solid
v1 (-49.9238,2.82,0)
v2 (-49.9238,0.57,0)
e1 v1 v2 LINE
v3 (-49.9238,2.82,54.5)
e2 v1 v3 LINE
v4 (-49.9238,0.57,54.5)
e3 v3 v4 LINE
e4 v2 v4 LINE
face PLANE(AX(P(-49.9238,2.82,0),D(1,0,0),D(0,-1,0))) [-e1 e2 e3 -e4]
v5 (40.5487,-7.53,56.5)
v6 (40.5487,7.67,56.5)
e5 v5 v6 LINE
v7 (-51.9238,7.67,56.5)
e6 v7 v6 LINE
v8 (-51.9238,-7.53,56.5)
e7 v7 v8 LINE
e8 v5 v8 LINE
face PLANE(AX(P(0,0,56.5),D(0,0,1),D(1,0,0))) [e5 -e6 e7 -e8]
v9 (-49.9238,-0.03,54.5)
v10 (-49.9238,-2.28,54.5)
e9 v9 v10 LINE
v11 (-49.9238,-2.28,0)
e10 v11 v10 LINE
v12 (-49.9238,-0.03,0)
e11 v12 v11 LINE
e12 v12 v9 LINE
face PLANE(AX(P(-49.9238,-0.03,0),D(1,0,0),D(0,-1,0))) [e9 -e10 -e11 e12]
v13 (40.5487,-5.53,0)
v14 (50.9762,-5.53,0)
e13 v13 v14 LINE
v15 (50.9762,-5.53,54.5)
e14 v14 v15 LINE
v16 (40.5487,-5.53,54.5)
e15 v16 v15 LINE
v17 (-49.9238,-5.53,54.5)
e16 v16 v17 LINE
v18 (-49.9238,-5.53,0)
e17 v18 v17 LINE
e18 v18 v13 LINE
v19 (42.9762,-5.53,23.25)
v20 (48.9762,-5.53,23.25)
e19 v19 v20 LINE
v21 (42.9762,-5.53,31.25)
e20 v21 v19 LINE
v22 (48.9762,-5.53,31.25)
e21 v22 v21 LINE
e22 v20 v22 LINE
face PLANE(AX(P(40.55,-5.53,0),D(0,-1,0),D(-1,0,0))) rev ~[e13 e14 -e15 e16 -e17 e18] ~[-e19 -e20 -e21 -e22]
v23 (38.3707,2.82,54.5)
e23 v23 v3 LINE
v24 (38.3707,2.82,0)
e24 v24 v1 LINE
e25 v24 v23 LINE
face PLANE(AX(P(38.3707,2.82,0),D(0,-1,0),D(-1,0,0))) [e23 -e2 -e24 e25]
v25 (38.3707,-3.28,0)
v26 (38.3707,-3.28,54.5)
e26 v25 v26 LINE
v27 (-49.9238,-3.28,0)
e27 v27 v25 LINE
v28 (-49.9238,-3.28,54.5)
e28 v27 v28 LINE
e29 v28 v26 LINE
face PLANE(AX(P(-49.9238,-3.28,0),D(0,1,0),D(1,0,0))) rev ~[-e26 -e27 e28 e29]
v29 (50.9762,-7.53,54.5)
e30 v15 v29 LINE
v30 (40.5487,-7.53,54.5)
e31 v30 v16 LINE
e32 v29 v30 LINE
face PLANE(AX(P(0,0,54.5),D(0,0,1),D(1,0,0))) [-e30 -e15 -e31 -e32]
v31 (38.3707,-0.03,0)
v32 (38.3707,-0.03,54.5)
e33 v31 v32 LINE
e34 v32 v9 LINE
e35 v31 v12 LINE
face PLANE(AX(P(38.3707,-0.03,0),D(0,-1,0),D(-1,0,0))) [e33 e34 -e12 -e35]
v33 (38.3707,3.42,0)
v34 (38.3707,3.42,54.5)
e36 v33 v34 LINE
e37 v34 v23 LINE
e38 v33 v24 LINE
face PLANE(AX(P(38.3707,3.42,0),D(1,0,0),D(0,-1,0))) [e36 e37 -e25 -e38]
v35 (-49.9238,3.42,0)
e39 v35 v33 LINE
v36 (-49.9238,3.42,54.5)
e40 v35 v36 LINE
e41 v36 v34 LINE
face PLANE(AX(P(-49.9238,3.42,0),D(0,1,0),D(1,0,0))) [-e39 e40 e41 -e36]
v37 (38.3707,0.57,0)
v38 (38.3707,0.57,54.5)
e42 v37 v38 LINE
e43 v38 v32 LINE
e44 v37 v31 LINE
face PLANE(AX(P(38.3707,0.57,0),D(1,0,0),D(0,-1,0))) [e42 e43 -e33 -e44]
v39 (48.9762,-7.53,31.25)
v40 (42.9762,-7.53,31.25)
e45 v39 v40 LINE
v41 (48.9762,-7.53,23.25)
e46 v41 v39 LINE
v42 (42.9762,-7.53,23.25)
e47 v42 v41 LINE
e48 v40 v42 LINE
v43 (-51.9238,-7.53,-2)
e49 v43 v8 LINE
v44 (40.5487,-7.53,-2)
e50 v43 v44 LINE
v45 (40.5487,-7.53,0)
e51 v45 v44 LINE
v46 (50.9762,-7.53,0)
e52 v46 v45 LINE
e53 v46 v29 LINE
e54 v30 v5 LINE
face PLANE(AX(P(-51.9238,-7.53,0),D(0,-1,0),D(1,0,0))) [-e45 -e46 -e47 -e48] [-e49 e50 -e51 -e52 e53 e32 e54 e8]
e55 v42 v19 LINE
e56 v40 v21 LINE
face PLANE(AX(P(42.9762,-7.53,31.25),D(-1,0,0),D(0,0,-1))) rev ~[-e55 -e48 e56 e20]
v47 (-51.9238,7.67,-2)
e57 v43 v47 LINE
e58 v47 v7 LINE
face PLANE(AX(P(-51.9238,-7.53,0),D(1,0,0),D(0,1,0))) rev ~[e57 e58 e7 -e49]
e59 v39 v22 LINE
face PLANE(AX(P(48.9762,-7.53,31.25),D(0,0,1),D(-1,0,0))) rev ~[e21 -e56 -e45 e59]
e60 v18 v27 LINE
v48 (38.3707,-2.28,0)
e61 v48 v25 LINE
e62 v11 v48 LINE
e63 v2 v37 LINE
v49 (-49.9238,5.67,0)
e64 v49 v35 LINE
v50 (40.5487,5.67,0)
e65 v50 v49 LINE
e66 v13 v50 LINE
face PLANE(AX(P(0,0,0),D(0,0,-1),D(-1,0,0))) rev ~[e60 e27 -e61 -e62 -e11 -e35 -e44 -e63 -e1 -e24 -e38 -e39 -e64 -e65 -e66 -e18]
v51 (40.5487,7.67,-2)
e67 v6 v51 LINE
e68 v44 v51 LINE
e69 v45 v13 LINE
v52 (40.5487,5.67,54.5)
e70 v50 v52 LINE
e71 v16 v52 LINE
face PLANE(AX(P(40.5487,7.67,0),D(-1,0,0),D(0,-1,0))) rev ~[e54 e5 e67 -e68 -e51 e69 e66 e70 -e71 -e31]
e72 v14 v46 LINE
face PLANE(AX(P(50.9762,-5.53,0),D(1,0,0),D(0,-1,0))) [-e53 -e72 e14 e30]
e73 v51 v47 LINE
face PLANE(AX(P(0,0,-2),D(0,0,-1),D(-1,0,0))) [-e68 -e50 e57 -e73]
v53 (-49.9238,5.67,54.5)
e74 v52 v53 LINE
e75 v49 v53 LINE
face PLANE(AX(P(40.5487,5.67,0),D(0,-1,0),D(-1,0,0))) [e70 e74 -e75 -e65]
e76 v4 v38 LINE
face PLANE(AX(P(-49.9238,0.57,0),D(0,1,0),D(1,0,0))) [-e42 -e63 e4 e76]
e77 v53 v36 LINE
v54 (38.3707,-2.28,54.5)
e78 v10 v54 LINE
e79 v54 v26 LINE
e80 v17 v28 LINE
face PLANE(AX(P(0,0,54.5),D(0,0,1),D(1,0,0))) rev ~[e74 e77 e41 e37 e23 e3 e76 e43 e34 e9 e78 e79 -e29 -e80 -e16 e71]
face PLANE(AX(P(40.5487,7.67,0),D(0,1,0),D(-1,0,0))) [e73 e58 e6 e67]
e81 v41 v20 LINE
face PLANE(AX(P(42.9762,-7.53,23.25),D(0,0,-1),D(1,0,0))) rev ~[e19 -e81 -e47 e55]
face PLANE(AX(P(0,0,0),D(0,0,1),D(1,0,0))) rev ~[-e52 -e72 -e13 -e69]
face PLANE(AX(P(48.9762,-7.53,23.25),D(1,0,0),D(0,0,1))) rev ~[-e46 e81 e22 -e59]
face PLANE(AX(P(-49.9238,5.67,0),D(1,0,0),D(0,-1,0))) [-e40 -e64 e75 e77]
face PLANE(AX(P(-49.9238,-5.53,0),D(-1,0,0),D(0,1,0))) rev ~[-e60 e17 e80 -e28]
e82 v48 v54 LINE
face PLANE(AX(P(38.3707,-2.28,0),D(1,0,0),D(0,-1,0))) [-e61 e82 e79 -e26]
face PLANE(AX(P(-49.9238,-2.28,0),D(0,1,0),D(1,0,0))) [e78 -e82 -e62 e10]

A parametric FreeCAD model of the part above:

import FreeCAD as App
import Part
import Sketcher
Q = App.Units.Quantity


def add_polygon(sketch, points):
    """Adds a closed chain of lines whose ends are joined by coincident constraints."""
    first, n = sketch.GeometryCount, len(points)
    for a, b in zip(points, points[1:] + points[:1]):
        sketch.addGeometry(Part.LineSegment(App.Vector(*a, 0), App.Vector(*b, 0)), False)
    for i in range(n):
        sketch.addConstraint(Sketcher.Constraint("Coincident", first + i, 2, first + (i + 1) % n, 1))

doc = App.newDocument("Part")
body = doc.addObject("PartDesign::Body", "Body")

# Sketch on XY plane
sketch1 = body.newObject("Sketcher::SketchObject", "Sketch")
sketch1.AttachmentSupport = (doc.getObject("XY_Plane"), [""])
sketch1.MapMode = "FlatFace"
add_polygon(sketch1, [(40.5, 7.7), (-51.9, 7.7), (-51.9, -7.5), (51, -7.5), (51, -5.5), (-49.9, -5.5), (-49.9, -3.3), (38.4, -3.3), (38.4, -2.3), (-49.9, -2.3), (-49.9, 0), (38.4, 0), (38.4, 0.6), (-49.9, 0.6), (-49.9, 2.8), (38.4, 2.8), (38.4, 3.4), (-49.9, 3.4), (-49.9, 5.7), (40.5, 5.7)])  # lines 0-19
sketch1.addConstraint([
    Sketcher.Constraint("Horizontal", 0),
    Sketcher.Constraint("Vertical", 1),
    Sketcher.Constraint("Horizontal", 2),
    Sketcher.Constraint("Vertical", 3),
    Sketcher.Constraint("Horizontal", 4),
    Sketcher.Constraint("Vertical", 5),
    Sketcher.Constraint("Horizontal", 6),
    Sketcher.Constraint("Vertical", 7),
    Sketcher.Constraint("Horizontal", 8),
    Sketcher.Constraint("Vertical", 9),
    Sketcher.Constraint("Horizontal", 10),
    Sketcher.Constraint("Vertical", 11),
    Sketcher.Constraint("Horizontal", 12),
    Sketcher.Constraint("Vertical", 13),
    Sketcher.Constraint("Horizontal", 14),
    Sketcher.Constraint("Vertical", 15),
    Sketcher.Constraint("Horizontal", 16),
    Sketcher.Constraint("Vertical", 17),
    Sketcher.Constraint("Horizontal", 18),
    Sketcher.Constraint("Vertical", 19),
    Sketcher.Constraint("Vertical", 5, 2, 8, 2),
    Sketcher.Constraint("Vertical", 7, 2, 10, 2),
    Sketcher.Constraint("Vertical", 9, 2, 12, 2),
    Sketcher.Constraint("Vertical", 11, 2, 14, 2),
    Sketcher.Constraint("Vertical", 13, 2, 16, 2),
    Sketcher.Constraint("Equal", 5, 9),
    Sketcher.Constraint("Equal", 9, 13),
    Sketcher.Constraint("Equal", 11, 15),
    Sketcher.Constraint("Equal", 13, 17),
    Sketcher.Constraint("Equal", 3, 19),
    Sketcher.Constraint("DistanceY", 3, 1, 3, 2, Q("2 mm")),
    Sketcher.Constraint("DistanceY", 7, 1, 7, 2, Q("1 mm")),
    Sketcher.Constraint("DistanceX", 2, 1, 2, 2, Q("102.9 mm")),
    Sketcher.Constraint("DistanceY", 11, 1, 11, 2, Q("0.6 mm")),
    Sketcher.Constraint("DistanceX", 1, 2, 4, 2, Q("2 mm")),
    Sketcher.Constraint("DistanceY", 5, 1, 5, 2, Q("2.25 mm")),
    Sketcher.Constraint("DistanceY", -1, 1, 0, 2, Q("7.67 mm")),
    Sketcher.Constraint("DistanceX", 0, 2, 0, 1, Q("92.4725 mm")),
    Sketcher.Constraint("DistanceX", 6, 1, 6, 2, Q("88.2945 mm")),
    Sketcher.Constraint("DistanceX", 0, 2, -1, 1, Q("51.9238 mm")),
])
pad1 = body.newObject("PartDesign::Pad", "Pad")
pad1.Profile = sketch1
pad1.Length = 54.5

# Sketch on XY plane
sketch2 = body.newObject("Sketcher::SketchObject", "Sketch001")
sketch2.AttachmentSupport = (doc.getObject("XY_Plane"), [""])
sketch2.MapMode = "FlatFace"
sketch2.AttachmentOffset = App.Placement(App.Vector(0, 0, 54.5), App.Rotation())
add_polygon(sketch2, [(41, 8), (-52, 8), (-52, -8), (41, -8)])  # lines 0-3
sketch2.addConstraint([
    Sketcher.Constraint("Horizontal", 0),
    Sketcher.Constraint("Vertical", 1),
    Sketcher.Constraint("Horizontal", 2),
    Sketcher.Constraint("Vertical", 3),
    Sketcher.Constraint("DistanceY", 1, 2, 1, 1, Q("15.2 mm")),
    Sketcher.Constraint("DistanceY", -1, 1, 0, 2, Q("7.67 mm")),
    Sketcher.Constraint("DistanceX", 0, 2, 0, 1, Q("92.4725 mm")),
    Sketcher.Constraint("DistanceX", 0, 2, -1, 1, Q("51.9238 mm")),
])
pad2 = body.newObject("PartDesign::Pad", "Pad001")
pad2.Profile = sketch2
pad2.Length = 2

# Sketch on XY plane
sketch3 = body.newObject("Sketcher::SketchObject", "Sketch002")
sketch3.AttachmentSupport = (doc.getObject("XY_Plane"), [""])
sketch3.MapMode = "FlatFace"
add_polygon(sketch3, [(-52, 8), (41, 8), (41, -8), (-52, -8)])  # lines 0-3
sketch3.addConstraint([
    Sketcher.Constraint("Horizontal", 0),
    Sketcher.Constraint("Vertical", 1),
    Sketcher.Constraint("Horizontal", 2),
    Sketcher.Constraint("Vertical", 3),
    Sketcher.Constraint("DistanceY", 1, 2, 1, 1, Q("15.2 mm")),
    Sketcher.Constraint("DistanceY", -1, 1, 0, 2, Q("7.67 mm")),
    Sketcher.Constraint("DistanceX", 0, 1, 0, 2, Q("92.4725 mm")),
    Sketcher.Constraint("DistanceX", -1, 1, 0, 2, Q("40.5487 mm")),
])
pad3 = body.newObject("PartDesign::Pad", "Pad002")
pad3.Profile = sketch3
pad3.Length = 2
pad3.Reversed = True

# Sketch on XZ plane
sketch4 = body.newObject("Sketcher::SketchObject", "Sketch003")
sketch4.AttachmentSupport = (doc.getObject("XZ_Plane"), [""])
sketch4.MapMode = "FlatFace"
sketch4.AttachmentOffset = App.Placement(App.Vector(0, 0, 7.53), App.Rotation())
add_polygon(sketch4, [(49, 23), (49, 31), (43, 31), (43, 23)])  # lines 0-3
sketch4.addConstraint([
    Sketcher.Constraint("Vertical", 0),
    Sketcher.Constraint("Horizontal", 1),
    Sketcher.Constraint("Vertical", 2),
    Sketcher.Constraint("Horizontal", 3),
    Sketcher.Constraint("DistanceX", 1, 2, 1, 1, Q("6 mm")),
    Sketcher.Constraint("DistanceY", 0, 1, 0, 2, Q("8 mm")),
    Sketcher.Constraint("DistanceY", -1, 1, 2, 2, Q("23.25 mm")),
    Sketcher.Constraint("DistanceX", -1, 1, 0, 2, Q("48.9762 mm")),
])
pocket1 = body.newObject("PartDesign::Pocket", "Pocket")
pocket1.Profile = sketch4
pocket1.Length = 2

doc.recompute()
